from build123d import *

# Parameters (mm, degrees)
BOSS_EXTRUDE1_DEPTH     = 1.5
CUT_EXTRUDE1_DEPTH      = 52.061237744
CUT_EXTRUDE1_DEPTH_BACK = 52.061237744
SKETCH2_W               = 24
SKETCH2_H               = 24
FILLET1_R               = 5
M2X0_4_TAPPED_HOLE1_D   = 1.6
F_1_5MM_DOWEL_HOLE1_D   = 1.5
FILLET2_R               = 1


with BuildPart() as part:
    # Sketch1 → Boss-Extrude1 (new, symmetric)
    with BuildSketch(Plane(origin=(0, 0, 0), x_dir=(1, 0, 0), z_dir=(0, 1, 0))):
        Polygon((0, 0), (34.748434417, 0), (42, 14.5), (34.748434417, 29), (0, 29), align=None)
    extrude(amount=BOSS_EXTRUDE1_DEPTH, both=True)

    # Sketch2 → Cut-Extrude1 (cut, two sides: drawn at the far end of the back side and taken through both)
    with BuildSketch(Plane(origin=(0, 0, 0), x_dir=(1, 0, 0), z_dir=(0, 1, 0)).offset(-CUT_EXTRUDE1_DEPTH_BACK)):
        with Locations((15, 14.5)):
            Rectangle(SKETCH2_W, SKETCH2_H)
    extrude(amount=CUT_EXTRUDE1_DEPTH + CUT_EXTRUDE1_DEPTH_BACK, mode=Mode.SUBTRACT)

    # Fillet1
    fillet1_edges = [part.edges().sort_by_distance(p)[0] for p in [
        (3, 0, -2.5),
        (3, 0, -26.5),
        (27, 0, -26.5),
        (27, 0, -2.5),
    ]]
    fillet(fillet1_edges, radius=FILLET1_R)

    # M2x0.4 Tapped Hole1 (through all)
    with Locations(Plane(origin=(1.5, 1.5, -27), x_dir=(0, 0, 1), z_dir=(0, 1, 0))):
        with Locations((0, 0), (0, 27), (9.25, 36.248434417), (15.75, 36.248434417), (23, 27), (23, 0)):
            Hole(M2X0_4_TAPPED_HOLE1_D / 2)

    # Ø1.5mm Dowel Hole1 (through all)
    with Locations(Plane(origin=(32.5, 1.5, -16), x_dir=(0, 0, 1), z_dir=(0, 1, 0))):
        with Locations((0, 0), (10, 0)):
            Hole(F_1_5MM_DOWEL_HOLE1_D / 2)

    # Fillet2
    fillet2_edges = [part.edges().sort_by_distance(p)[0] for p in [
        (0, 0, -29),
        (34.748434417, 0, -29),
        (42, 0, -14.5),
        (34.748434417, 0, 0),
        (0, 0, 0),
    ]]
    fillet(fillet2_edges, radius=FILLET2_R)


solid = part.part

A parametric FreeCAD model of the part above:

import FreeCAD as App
import Part
import Sketcher
from FreeCAD import Vector
Q = App.Units.Quantity


def edges_at(feature, points):
    """Names of the edges that pass closest to the given points."""
    edges = feature.Shape.Edges
    near = lambda p: min(range(len(edges)), key=lambda i: edges[i].distToShape(Part.Vertex(*p))[0])
    return sorted({f"Edge{near(p) + 1}" for p in points})


def add_polygon(sketch, points):
    """Adds a closed chain of lines whose ends are joined by coincident constraints."""
    first, n = sketch.GeometryCount, len(points)
    for a, b in zip(points, points[1:] + points[:1]):
        sketch.addGeometry(Part.LineSegment(App.Vector(*a, 0), App.Vector(*b, 0)), False)
    for i in range(n):
        sketch.addConstraint(Sketcher.Constraint("Coincident", first + i, 2, first + (i + 1) % n, 1))

doc = App.newDocument("Part")
body = doc.addObject("PartDesign::Body", "Body")

# Sketch on XZ plane
sketch1 = body.newObject("Sketcher::SketchObject", "Sketch")
sketch1.AttachmentSupport = (doc.getObject("XZ_Plane"), [""])
sketch1.MapMode = "FlatFace"
add_polygon(sketch1, [(0, 0), (35, 0), (42, -14), (35, -29), (0, -29)])  # lines 0-4
sketch1.addConstraint(Sketcher.Constraint("Horizontal", 0))
sketch1.addConstraint(Sketcher.Constraint("Horizontal", 3))
sketch1.addConstraint(Sketcher.Constraint("Vertical", 4))
sketch1.addConstraint(Sketcher.Constraint("Coincident", 4, 2, -1, 1))
sketch1.addConstraint(Sketcher.Constraint("Vertical", 0, 2, 2, 2))
sketch1.addConstraint(Sketcher.Constraint("Equal", 1, 2))
sketch1.addConstraint(Sketcher.Constraint("DistanceY", 4, 1, 4, 2, 29.0))
sketch1.addConstraint(Sketcher.Constraint("DistanceX", -1, 1, 1, 2, 42.0))
sketch1.addConstraint(Sketcher.Constraint("Angle", 1, Q("-63.43 deg")))
pad1 = body.newObject("PartDesign::Pad", "Pad")
pad1.Profile = sketch1
pad1.Length = 3
pad1.Midplane = True

# Sketch on XZ plane
sketch2 = body.newObject("Sketcher::SketchObject", "Sketch001")
sketch2.AttachmentSupport = (doc.getObject("XZ_Plane"), [""])
sketch2.MapMode = "FlatFace"
add_polygon(sketch2, [(3, -26), (3, -2), (27, -2), (27, -26)])  # lines 0-3
sketch2.addConstraint(Sketcher.Constraint("Vertical", 0))
sketch2.addConstraint(Sketcher.Constraint("Horizontal", 1))
sketch2.addConstraint(Sketcher.Constraint("Vertical", 2))
sketch2.addConstraint(Sketcher.Constraint("Horizontal", 3))
sketch2.addConstraint(Sketcher.Constraint("Equal", 3, 0))
sketch2.addConstraint(Sketcher.Constraint("DistanceX", 1, 1, 1, 2, 24.0))
sketch2.addConstraint(Sketcher.Constraint("DistanceX", -1, 1, 0, 2, 3.0))
sketch2.addConstraint(Sketcher.Constraint("DistanceY", 0, 2, -1, 1, 2.5))
pocket1 = body.newObject("PartDesign::Pocket", "Pocket")
pocket1.Profile = sketch2
pocket1.Type = "ThroughAll"
pocket1.Midplane = True
doc.recompute()

fillet = body.newObject("PartDesign::Fillet", "Fillet")
fillet.Base = (pocket1, edges_at(pocket1, [
    (3, 0, -2.5),
    (3, 0, -26.5),
    (27, 0, -26.5),
    (27, 0, -2.5),
]))
fillet.Radius = 5

# Sketch on XZ plane
sketch3 = body.newObject("Sketcher::SketchObject", "Sketch002")
sketch3.AttachmentSupport = (doc.getObject("XZ_Plane"), [""])
sketch3.MapMode = "FlatFace"
sketch3.AttachmentOffset = App.Placement(Vector(0, 0, -1.5), App.Rotation())
sketch3.addGeometry(Part.Circle(Vector(1.5, -27, 0), Vector(0, 0, 1), 0.8), False)
sketch3.addGeometry(Part.Circle(Vector(28.5, -27, 0), Vector(0, 0, 1), 0.8), False)
sketch3.addGeometry(Part.Circle(Vector(37.7, -17.8, 0), Vector(0, 0, 1), 0.8), False)
sketch3.addGeometry(Part.Circle(Vector(37.7, -11.2, 0), Vector(0, 0, 1), 0.8), False)
sketch3.addGeometry(Part.Circle(Vector(28.5, -4, 0), Vector(0, 0, 1), 0.8), False)
sketch3.addGeometry(Part.Circle(Vector(1.5, -4, 0), Vector(0, 0, 1), 0.8), False)
sketch3.addConstraint(Sketcher.Constraint("Equal", 0, 1))
sketch3.addConstraint(Sketcher.Constraint("Equal", 1, 2))
sketch3.addConstraint(Sketcher.Constraint("Equal", 2, 3))
sketch3.addConstraint(Sketcher.Constraint("Equal", 3, 4))
sketch3.addConstraint(Sketcher.Constraint("Equal", 4, 5))
sketch3.addConstraint(Sketcher.Constraint("Horizontal", 0, 3, 1, 3))
sketch3.addConstraint(Sketcher.Constraint("Horizontal", 4, 3, 5, 3))
sketch3.addConstraint(Sketcher.Constraint("Vertical", 2, 3, 3, 3))
sketch3.addConstraint(Sketcher.Constraint("Vertical", 1, 3, 4, 3))
sketch3.addConstraint(Sketcher.Constraint("Vertical", 0, 3, 5, 3))
sketch3.addConstraint(Sketcher.Constraint("Diameter", 0, 1.6))
sketch3.addConstraint(Sketcher.Constraint("DistanceY", 0, 3, -1, 1, 27.0))
sketch3.addConstraint(Sketcher.Constraint("DistanceY", 4, 3, -1, 1, 4.0))
sketch3.addConstraint(Sketcher.Constraint("DistanceX", 0, 3, 1, 3, 27.0))
sketch3.addConstraint(Sketcher.Constraint("DistanceX", -1, 1, 0, 3, 1.5))
sketch3.addConstraint(Sketcher.Constraint("DistanceY", 2, 3, 3, 3, 6.5))
sketch3.addConstraint(Sketcher.Constraint("DistanceY", 2, 3, -1, 1, 17.75))
sketch3.addConstraint(Sketcher.Constraint("DistanceX", -1, 1, 2, 3, 37.748434))
doc.recompute()
hole = body.newObject("PartDesign::Hole", "Hole")
hole.Profile = sketch3
hole.ThreadType = "None"
hole.Diameter = 1.6
hole.DepthType = "ThroughAll"
hole.Reversed = True

# Sketch on XZ plane
sketch4 = body.newObject("Sketcher::SketchObject", "Sketch003")
sketch4.AttachmentSupport = (doc.getObject("XZ_Plane"), [""])
sketch4.MapMode = "FlatFace"
sketch4.AttachmentOffset = App.Placement(Vector(0, 0, -1.5), App.Rotation())
sketch4.addGeometry(Part.Circle(Vector(32.5, -16, 0), Vector(0, 0, 1), 0.8), False)
sketch4.addGeometry(Part.Circle(Vector(32.5, -6, 0), Vector(0, 0, 1), 0.8), False)
sketch4.addConstraint(Sketcher.Constraint("Equal", 0, 1))
sketch4.addConstraint(Sketcher.Constraint("Vertical", 0, 3, 1, 3))
sketch4.addConstraint(Sketcher.Constraint("Diameter", 0, 1.5))
sketch4.addConstraint(Sketcher.Constraint("DistanceY", 0, 3, -1, 1, 16.0))
sketch4.addConstraint(Sketcher.Constraint("DistanceY", 1, 3, -1, 1, 6.0))
sketch4.addConstraint(Sketcher.Constraint("DistanceX", -1, 1, 0, 3, 32.5))
doc.recompute()
hole2 = body.newObject("PartDesign::Hole", "Hole001")
hole2.Profile = sketch4
hole2.ThreadType = "None"
hole2.Diameter = 1.5
hole2.DepthType = "ThroughAll"
hole2.Reversed = True
doc.recompute()

fillet2 = body.newObject("PartDesign::Fillet", "Fillet001")
fillet2.Base = (hole2, edges_at(hole2, [
    (0, 0, -29),
    (34.748, 0, -29),
    (42, 0, -14.5),
    (34.748, 0, 0),
    (0, 0, 0),
]))
fillet2.Radius = 1

doc.recompute()
